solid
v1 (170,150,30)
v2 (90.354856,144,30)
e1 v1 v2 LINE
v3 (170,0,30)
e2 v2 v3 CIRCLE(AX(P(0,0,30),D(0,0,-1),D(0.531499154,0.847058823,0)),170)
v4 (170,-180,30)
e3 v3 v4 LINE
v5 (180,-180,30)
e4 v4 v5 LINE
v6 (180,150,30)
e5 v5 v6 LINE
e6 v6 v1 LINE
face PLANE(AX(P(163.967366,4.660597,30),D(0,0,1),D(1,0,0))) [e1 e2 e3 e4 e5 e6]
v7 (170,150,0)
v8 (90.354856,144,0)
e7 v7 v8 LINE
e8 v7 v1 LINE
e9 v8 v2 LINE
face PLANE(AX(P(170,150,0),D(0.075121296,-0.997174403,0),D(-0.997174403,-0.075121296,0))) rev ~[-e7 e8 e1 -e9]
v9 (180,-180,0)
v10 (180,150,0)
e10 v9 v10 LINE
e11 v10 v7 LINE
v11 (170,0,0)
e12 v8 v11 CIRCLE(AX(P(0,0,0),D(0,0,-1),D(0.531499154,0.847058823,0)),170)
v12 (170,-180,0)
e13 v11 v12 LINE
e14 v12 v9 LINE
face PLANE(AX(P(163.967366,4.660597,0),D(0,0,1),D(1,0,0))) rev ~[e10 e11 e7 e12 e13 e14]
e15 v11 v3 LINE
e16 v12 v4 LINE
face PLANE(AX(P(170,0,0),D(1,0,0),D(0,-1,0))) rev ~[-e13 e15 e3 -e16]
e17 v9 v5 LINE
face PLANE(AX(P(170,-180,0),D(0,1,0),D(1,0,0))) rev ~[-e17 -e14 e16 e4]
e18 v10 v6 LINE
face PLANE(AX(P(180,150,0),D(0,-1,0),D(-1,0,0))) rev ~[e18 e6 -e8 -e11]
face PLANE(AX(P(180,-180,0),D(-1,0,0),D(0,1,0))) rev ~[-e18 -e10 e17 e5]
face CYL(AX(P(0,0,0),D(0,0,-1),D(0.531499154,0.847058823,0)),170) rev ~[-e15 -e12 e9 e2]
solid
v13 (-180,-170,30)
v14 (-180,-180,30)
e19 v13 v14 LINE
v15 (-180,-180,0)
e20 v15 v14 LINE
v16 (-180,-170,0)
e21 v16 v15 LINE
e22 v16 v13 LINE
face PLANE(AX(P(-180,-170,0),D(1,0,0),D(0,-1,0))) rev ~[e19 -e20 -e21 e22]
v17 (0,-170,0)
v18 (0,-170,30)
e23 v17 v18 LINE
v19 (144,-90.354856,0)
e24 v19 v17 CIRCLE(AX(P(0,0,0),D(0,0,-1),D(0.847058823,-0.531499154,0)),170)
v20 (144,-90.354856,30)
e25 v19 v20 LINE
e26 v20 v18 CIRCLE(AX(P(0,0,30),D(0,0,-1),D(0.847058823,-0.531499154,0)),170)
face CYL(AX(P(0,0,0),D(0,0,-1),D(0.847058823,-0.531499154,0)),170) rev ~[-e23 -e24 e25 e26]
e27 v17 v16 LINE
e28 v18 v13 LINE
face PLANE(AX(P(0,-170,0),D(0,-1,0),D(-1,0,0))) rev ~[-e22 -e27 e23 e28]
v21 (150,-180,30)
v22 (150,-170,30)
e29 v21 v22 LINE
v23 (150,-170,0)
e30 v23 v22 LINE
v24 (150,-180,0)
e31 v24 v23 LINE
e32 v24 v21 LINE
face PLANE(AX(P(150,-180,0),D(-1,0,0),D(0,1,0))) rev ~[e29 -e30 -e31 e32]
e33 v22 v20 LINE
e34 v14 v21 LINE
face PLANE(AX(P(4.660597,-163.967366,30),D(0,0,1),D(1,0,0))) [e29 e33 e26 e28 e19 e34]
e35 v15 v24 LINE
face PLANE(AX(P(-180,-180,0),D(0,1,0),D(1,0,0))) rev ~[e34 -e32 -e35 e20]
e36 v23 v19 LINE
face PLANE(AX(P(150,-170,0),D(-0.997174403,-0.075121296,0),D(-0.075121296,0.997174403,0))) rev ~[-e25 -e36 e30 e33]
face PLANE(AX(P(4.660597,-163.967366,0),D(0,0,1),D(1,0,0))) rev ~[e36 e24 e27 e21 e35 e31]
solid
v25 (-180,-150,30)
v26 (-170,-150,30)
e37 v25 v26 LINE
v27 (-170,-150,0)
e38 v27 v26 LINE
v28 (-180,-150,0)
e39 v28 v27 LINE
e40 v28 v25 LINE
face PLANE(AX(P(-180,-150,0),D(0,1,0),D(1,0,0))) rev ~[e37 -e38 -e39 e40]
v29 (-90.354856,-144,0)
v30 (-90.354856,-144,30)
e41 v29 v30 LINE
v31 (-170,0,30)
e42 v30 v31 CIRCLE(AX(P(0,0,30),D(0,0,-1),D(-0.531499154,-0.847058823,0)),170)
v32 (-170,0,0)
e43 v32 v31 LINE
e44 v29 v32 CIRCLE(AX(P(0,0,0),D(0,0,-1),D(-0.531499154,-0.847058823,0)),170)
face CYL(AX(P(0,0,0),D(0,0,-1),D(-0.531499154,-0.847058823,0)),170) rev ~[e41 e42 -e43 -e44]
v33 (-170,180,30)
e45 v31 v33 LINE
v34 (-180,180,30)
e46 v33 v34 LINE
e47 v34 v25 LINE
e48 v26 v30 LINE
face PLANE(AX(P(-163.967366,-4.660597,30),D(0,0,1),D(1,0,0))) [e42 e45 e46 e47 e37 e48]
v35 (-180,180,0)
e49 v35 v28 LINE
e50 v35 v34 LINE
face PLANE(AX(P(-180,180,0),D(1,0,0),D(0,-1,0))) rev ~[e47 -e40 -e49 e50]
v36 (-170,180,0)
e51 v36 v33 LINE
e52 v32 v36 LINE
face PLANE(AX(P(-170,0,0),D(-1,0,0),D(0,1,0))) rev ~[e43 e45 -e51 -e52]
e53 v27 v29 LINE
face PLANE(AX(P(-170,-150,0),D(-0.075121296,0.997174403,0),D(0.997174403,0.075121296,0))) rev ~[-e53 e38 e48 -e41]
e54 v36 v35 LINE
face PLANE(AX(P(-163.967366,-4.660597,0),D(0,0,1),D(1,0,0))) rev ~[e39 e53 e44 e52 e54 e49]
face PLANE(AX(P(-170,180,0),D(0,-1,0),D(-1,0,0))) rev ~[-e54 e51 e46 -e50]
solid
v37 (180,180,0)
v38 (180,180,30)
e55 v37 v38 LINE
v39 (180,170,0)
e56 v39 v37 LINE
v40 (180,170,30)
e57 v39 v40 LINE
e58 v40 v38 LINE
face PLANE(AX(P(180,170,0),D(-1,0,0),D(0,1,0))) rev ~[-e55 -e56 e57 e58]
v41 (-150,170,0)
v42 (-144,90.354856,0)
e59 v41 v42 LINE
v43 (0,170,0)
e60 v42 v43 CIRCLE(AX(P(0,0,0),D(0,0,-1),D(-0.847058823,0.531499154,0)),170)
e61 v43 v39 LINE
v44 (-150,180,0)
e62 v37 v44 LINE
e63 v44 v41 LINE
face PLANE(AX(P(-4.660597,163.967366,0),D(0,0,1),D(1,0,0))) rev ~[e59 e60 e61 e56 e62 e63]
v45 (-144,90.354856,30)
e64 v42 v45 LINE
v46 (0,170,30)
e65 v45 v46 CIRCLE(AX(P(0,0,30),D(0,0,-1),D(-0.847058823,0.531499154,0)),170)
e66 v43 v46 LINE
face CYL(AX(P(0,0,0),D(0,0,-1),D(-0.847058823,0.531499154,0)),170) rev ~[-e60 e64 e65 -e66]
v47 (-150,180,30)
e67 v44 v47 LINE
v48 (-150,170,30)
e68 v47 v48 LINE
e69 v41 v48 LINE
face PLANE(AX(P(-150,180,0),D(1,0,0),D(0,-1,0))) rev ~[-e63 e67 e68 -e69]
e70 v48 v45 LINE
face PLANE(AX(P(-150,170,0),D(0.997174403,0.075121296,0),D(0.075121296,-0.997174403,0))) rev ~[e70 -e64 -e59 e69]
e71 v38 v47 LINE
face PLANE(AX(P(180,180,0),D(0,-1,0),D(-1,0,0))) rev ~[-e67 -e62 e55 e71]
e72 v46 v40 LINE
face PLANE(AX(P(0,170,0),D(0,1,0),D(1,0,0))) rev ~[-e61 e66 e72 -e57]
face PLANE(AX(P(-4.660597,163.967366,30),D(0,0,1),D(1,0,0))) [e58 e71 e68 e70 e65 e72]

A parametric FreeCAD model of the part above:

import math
import FreeCAD as App
import Part
import Sketcher

V = App.Vector

doc = App.newDocument("Part")
body = doc.addObject("PartDesign::Body", "Body")
body.AllowCompound = True

# Sketch on XY plane
sketch1 = body.newObject("Sketcher::SketchObject", "Sketch")
sketch1.AttachmentSupport = (doc.getObject("XY_Plane"), [""])
sketch1.MapMode = "FlatFace"
sketch1.addGeometry([
    Part.ArcOfCircle(Part.Circle(V(0, 0, 0), V(0, 0, 1), 170), math.radians(90), math.radians(148)),  # 0
    Part.LineSegment(V(0, 170, 0), V(180, 170, 0)),  # 1
    Part.LineSegment(V(180, 170, 0), V(180, 180, 0)),  # 2
    Part.LineSegment(V(180, 180, 0), V(-150, 180, 0)),  # 3
    Part.LineSegment(V(-150, 180, 0), V(-150, 170, 0)),  # 4
    Part.LineSegment(V(-150, 170, 0), V(-144, 90, 0)),  # 5
    Part.LineSegment(V(0, -170, 0), V(-180, -170, 0)),  # 6
    Part.LineSegment(V(-180, -170, 0), V(-180, -180, 0)),  # 7
    Part.LineSegment(V(-180, -180, 0), V(150, -180, 0)),  # 8
    Part.LineSegment(V(150, -180, 0), V(150, -170, 0)),  # 9
    Part.LineSegment(V(150, -170, 0), V(144, -90, 0)),  # 10
    Part.ArcOfCircle(Part.Circle(V(0, 0, 0), V(0, 0, 1), 170), math.radians(-90), math.radians(-32)),  # 11
    Part.LineSegment(V(-170, 0, 0), V(-170, 180, 0)),  # 12
    Part.LineSegment(V(-170, 180, 0), V(-180, 180, 0)),  # 13
    Part.LineSegment(V(-180, 180, 0), V(-180, -150, 0)),  # 14
    Part.LineSegment(V(-180, -150, 0), V(-170, -150, 0)),  # 15
    Part.LineSegment(V(-170, -150, 0), V(-90, -144, 0)),  # 16
    Part.ArcOfCircle(Part.Circle(V(0, 0, 0), V(0, 0, 1), 170), math.radians(-180), math.radians(-122)),  # 17
    Part.ArcOfCircle(Part.Circle(V(0, 0, 0), V(0, 0, 1), 170), math.radians(0), math.radians(58)),  # 18
    Part.LineSegment(V(170, 0, 0), V(170, -180, 0)),  # 19
    Part.LineSegment(V(170, -180, 0), V(180, -180, 0)),  # 20
    Part.LineSegment(V(180, -180, 0), V(180, 150, 0)),  # 21
    Part.LineSegment(V(180, 150, 0), V(170, 150, 0)),  # 22
    Part.LineSegment(V(170, 150, 0), V(90, 144, 0)),  # 23
], False)
sketch1.addConstraint([
    Sketcher.Constraint("Tangent", 0, 1, 1, 1),
    Sketcher.Constraint("Coincident", 1, 2, 2, 1),
    Sketcher.Constraint("Coincident", 2, 2, 3, 1),
    Sketcher.Constraint("Coincident", 3, 2, 4, 1),
    Sketcher.Constraint("Coincident", 4, 2, 5, 1),
    Sketcher.Constraint("Coincident", 5, 2, 0, 2),
    Sketcher.Constraint("Coincident", 6, 2, 7, 1),
    Sketcher.Constraint("Coincident", 7, 2, 8, 1),
    Sketcher.Constraint("Coincident", 8, 2, 9, 1),
    Sketcher.Constraint("Coincident", 9, 2, 10, 1),
    Sketcher.Constraint("Coincident", 10, 2, 11, 2),
    Sketcher.Constraint("Tangent", 11, 1, 6, 1),
    Sketcher.Constraint("Coincident", 12, 2, 13, 1),
    Sketcher.Constraint("Coincident", 13, 2, 14, 1),
    Sketcher.Constraint("Coincident", 14, 2, 15, 1),
    Sketcher.Constraint("Coincident", 15, 2, 16, 1),
    Sketcher.Constraint("Coincident", 16, 2, 17, 2),
    Sketcher.Constraint("Tangent", 17, 1, 12, 1),
    Sketcher.Constraint("Tangent", 18, 1, 19, 1),
    Sketcher.Constraint("Coincident", 19, 2, 20, 1),
    Sketcher.Constraint("Coincident", 20, 2, 21, 1),
    Sketcher.Constraint("Coincident", 21, 2, 22, 1),
    Sketcher.Constraint("Coincident", 22, 2, 23, 1),
    Sketcher.Constraint("Coincident", 23, 2, 18, 2),
    Sketcher.Constraint("Horizontal", 1),
    Sketcher.Constraint("Vertical", 2),
    Sketcher.Constraint("Horizontal", 3),
    Sketcher.Constraint("Vertical", 4),
    Sketcher.Constraint("Horizontal", 6),
    Sketcher.Constraint("Vertical", 7),
    Sketcher.Constraint("Horizontal", 8),
    Sketcher.Constraint("Vertical", 9),
    Sketcher.Constraint("Vertical", 12),
    Sketcher.Constraint("Horizontal", 13),
    Sketcher.Constraint("Vertical", 14),
    Sketcher.Constraint("Horizontal", 15),
    Sketcher.Constraint("Vertical", 19),
    Sketcher.Constraint("Horizontal", 20),
    Sketcher.Constraint("Vertical", 21),
    Sketcher.Constraint("Horizontal", 22),
    Sketcher.Constraint("Coincident", 0, 3, -1, 1),
    Sketcher.Constraint("Coincident", 11, 3, -1, 1),
    Sketcher.Constraint("Coincident", 17, 3, -1, 1),
    Sketcher.Constraint("Coincident", 18, 3, -1, 1),
    Sketcher.Constraint("Equal", 0, 11),
    Sketcher.Constraint("Equal", 11, 17),
    Sketcher.Constraint("Equal", 17, 18),
    Sketcher.Constraint("Symmetric", 2, 2, 7, 2, -1, 1),
    Sketcher.Constraint("Symmetric", 4, 2, 9, 2, -1, 1),
    Sketcher.Constraint("Symmetric", 13, 2, 20, 2, -1, 1),
    Sketcher.Constraint("Symmetric", 15, 2, 22, 2, -1, 1),
    Sketcher.Constraint("Symmetric", 2, 2, 13, 2, -2),
    Sketcher.Constraint("Parallel", 5, 10),
    Sketcher.Constraint("Perpendicular", 10, 16),
    Sketcher.Constraint("Parallel", 16, 23),
    Sketcher.Constraint("Horizontal", 1, 2, 4, 2),
    Sketcher.Constraint("Vertical", 12, 2, 15, 2),
    Sketcher.Constraint("Equal", 22, 2),
    Sketcher.Constraint("Equal", 8, 14),
    Sketcher.Constraint("Radius", 0, 170.0),
    Sketcher.Constraint("DistanceX", 1, 1, 1, 2, 180.0),
    Sketcher.Constraint("DistanceX", 3, 2, 3, 1, 330.0),
    Sketcher.Constraint("DistanceX", 5, 2, -1, 1, 144.0),
])
pad1 = body.newObject("PartDesign::Pad", "Pad")
pad1.Profile = sketch1
pad1.Length = 30

doc.recompute()
